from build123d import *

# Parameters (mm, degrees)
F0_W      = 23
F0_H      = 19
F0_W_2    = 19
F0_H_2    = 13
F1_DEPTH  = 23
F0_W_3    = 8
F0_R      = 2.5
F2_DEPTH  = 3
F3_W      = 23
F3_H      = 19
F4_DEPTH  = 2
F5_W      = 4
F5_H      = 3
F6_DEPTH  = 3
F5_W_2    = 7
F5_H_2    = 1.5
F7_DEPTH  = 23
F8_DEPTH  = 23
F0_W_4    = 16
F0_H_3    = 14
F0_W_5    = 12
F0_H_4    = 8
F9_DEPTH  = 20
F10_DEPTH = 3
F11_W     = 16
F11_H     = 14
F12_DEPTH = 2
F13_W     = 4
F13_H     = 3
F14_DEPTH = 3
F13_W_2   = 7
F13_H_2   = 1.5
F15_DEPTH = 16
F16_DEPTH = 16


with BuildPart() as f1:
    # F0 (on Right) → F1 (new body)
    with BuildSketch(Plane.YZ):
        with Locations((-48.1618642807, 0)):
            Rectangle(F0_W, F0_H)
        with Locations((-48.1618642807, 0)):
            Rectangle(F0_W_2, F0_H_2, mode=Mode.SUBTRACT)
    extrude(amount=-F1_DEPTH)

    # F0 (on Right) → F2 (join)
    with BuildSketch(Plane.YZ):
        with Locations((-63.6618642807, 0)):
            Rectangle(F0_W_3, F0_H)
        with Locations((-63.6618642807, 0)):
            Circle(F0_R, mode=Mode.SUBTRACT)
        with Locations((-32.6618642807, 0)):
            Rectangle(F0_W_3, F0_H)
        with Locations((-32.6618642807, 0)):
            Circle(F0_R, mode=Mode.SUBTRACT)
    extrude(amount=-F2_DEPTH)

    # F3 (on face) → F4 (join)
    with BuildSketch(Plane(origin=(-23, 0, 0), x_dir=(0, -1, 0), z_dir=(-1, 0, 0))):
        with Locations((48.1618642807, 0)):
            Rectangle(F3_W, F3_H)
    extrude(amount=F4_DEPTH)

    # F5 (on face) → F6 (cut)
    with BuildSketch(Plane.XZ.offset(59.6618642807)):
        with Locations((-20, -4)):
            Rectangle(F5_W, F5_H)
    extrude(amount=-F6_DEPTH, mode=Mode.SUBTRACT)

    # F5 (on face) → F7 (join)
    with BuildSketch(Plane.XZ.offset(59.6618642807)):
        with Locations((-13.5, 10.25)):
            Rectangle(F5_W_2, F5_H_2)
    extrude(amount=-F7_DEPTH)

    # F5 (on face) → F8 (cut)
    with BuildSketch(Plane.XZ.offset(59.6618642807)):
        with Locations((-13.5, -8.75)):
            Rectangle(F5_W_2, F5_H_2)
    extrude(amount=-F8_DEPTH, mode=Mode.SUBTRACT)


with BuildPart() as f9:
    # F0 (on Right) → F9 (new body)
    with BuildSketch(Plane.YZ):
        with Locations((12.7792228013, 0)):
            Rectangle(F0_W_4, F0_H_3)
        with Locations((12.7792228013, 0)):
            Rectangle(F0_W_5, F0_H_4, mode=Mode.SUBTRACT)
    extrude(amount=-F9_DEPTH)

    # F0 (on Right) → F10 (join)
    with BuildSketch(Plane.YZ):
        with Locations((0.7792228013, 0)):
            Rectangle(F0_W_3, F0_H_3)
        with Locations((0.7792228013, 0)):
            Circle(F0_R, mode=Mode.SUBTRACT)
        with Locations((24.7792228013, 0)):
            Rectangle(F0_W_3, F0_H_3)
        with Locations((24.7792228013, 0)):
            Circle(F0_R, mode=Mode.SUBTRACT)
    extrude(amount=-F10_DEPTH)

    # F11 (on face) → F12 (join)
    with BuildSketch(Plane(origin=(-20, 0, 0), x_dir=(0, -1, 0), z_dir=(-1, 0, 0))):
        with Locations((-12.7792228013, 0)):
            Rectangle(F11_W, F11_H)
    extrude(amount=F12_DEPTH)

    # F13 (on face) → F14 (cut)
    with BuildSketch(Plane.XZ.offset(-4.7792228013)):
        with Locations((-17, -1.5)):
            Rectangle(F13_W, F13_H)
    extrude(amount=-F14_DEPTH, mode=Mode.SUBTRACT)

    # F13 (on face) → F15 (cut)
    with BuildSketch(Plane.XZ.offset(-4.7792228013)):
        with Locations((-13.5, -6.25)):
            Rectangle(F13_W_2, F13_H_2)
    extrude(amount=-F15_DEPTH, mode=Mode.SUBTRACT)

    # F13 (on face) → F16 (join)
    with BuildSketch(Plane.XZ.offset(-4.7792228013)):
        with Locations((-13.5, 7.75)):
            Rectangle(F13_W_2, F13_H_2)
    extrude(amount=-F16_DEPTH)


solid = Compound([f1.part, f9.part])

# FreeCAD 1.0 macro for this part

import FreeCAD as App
import Part
import Sketcher


def add_polygon(sketch, points):
    """Adds a closed chain of lines whose ends are joined by coincident constraints."""
    first, n = sketch.GeometryCount, len(points)
    for a, b in zip(points, points[1:] + points[:1]):
        sketch.addGeometry(Part.LineSegment(App.Vector(*a, 0), App.Vector(*b, 0)), False)
    for i in range(n):
        sketch.addConstraint(Sketcher.Constraint("Coincident", first + i, 2, first + (i + 1) % n, 1))

doc = App.newDocument("Part")
body = doc.addObject("PartDesign::Body", "Body")

# Sketch on YZ plane
sketch1 = body.newObject("Sketcher::SketchObject", "Sketch")
sketch1.AttachmentSupport = (doc.getObject("YZ_Plane"), [""])
sketch1.MapMode = "FlatFace"
add_polygon(sketch1, [(-59.661864, 9.5), (-59.661864, -9.5), (-36.661864, -9.5), (-36.661864, 9.5)])  # lines 0-3
add_polygon(sketch1, [(-38.661864, -6.5), (-57.661864, -6.5), (-57.661864, 6.5), (-38.661864, 6.5)])  # lines 4-7
sketch1.addConstraint([
    Sketcher.Constraint("Vertical", 0),
    Sketcher.Constraint("Horizontal", 1),
    Sketcher.Constraint("Vertical", 2),
    Sketcher.Constraint("Horizontal", 3),
    Sketcher.Constraint("Horizontal", 4),
    Sketcher.Constraint("Vertical", 5),
    Sketcher.Constraint("Horizontal", 6),
    Sketcher.Constraint("Vertical", 7),
    Sketcher.Constraint("Equal", 6, 0),
    Sketcher.Constraint("DistanceX", 1, 1, 1, 2, 23.0),
    Sketcher.Constraint("DistanceX", 4, 2, 4, 1, 19.0),
    Sketcher.Constraint("DistanceY", 5, 1, 5, 2, 13.0),
    Sketcher.Constraint("DistanceX", 0, 2, 4, 2, 2.0),
    Sketcher.Constraint("DistanceY", 0, 2, 4, 2, 3.0),
    Sketcher.Constraint("DistanceY", 0, 2, -1, 1, 9.5),
    Sketcher.Constraint("DistanceX", 0, 2, -1, 1, 59.661864),
])
pad1 = body.newObject("PartDesign::Pad", "Pad")
pad1.Profile = sketch1
pad1.Length = 23
pad1.Reversed = True

# Sketch on YZ plane
sketch2 = body.newObject("Sketcher::SketchObject", "Sketch001")
sketch2.AttachmentSupport = (doc.getObject("YZ_Plane"), [""])
sketch2.MapMode = "FlatFace"
add_polygon(sketch2, [(-67.661864, 9.5), (-67.661864, -9.5), (-59.661864, -9.5), (-59.661864, 9.5)])  # lines 0-3
sketch2.addGeometry(Part.Circle(App.Vector(-63.661864, 0, 0), App.Vector(0, 0, 1), 2.5), False)  # 4
add_polygon(sketch2, [(-36.661864, 9.5), (-36.661864, -9.5), (-28.661864, -9.5), (-28.661864, 9.5)])  # lines 5-8
sketch2.addGeometry(Part.Circle(App.Vector(-32.661864, 0, 0), App.Vector(0, 0, 1), 2.5), False)  # 9
sketch2.addConstraint([
    Sketcher.Constraint("Vertical", 0),
    Sketcher.Constraint("Horizontal", 1),
    Sketcher.Constraint("Vertical", 2),
    Sketcher.Constraint("Horizontal", 3),
    Sketcher.Constraint("Vertical", 5),
    Sketcher.Constraint("Horizontal", 6),
    Sketcher.Constraint("Vertical", 7),
    Sketcher.Constraint("Horizontal", 8),
    Sketcher.Constraint("Equal", 4, 9),
    Sketcher.Constraint("PointOnObject", 4, 3, -1),
    Sketcher.Constraint("PointOnObject", 9, 3, -1),
    Sketcher.Constraint("Horizontal", 1, 2, 5, 2),
    Sketcher.Constraint("Horizontal", 3, 2, 7, 2),
    Sketcher.Constraint("Equal", 3, 6),
    Sketcher.Constraint("Diameter", 4, 5.0),
    Sketcher.Constraint("DistanceX", 1, 1, 1, 2, 8.0),
    Sketcher.Constraint("DistanceY", 0, 2, 0, 1, 19.0),
    Sketcher.Constraint("DistanceX", 4, 3, 9, 3, 31.0),
    Sketcher.Constraint("DistanceX", 0, 2, 4, 3, 4.0),
    Sketcher.Constraint("DistanceX", 5, 2, 9, 3, 4.0),
    Sketcher.Constraint("DistanceY", 0, 2, -1, 1, 9.5),
    Sketcher.Constraint("DistanceX", 4, 3, -1, 1, 63.661864),
])
pad2 = body.newObject("PartDesign::Pad", "Pad001")
pad2.Profile = sketch2
pad2.Length = 3
pad2.Reversed = True

# Sketch on YZ plane
sketch3 = body.newObject("Sketcher::SketchObject", "Sketch002")
sketch3.AttachmentSupport = (doc.getObject("YZ_Plane"), [""])
sketch3.MapMode = "FlatFace"
sketch3.AttachmentOffset = App.Placement(App.Vector(0, 0, -23), App.Rotation())
add_polygon(sketch3, [(-36.661864, 9.5), (-36.661864, -9.5), (-59.661864, -9.5), (-59.661864, 9.5)])  # lines 0-3
sketch3.addConstraint([
    Sketcher.Constraint("Vertical", 0),
    Sketcher.Constraint("Horizontal", 1),
    Sketcher.Constraint("Vertical", 2),
    Sketcher.Constraint("Horizontal", 3),
    Sketcher.Constraint("DistanceX", 1, 2, 1, 1, 23.0),
    Sketcher.Constraint("DistanceY", 0, 2, 0, 1, 19.0),
    Sketcher.Constraint("DistanceY", 0, 2, -1, 1, 9.5),
    Sketcher.Constraint("DistanceX", 0, 2, -1, 1, 36.661864),
])
pad3 = body.newObject("PartDesign::Pad", "Pad002")
pad3.Profile = sketch3
pad3.Length = 2
pad3.Reversed = True

# Sketch on XZ plane
sketch4 = body.newObject("Sketcher::SketchObject", "Sketch003")
sketch4.AttachmentSupport = (doc.getObject("XZ_Plane"), [""])
sketch4.MapMode = "FlatFace"
sketch4.AttachmentOffset = App.Placement(App.Vector(0, 0, 59.661864), App.Rotation())
add_polygon(sketch4, [(-22, -2.5), (-22, -5.5), (-18, -5.5), (-18, -2.5)])  # lines 0-3
sketch4.addConstraint([
    Sketcher.Constraint("Vertical", 0),
    Sketcher.Constraint("Horizontal", 1),
    Sketcher.Constraint("Vertical", 2),
    Sketcher.Constraint("Horizontal", 3),
    Sketcher.Constraint("DistanceX", 1, 1, 1, 2, 4.0),
    Sketcher.Constraint("DistanceY", 0, 2, 0, 1, 3.0),
    Sketcher.Constraint("DistanceX", 0, 2, -1, 1, 22.0),
    Sketcher.Constraint("DistanceY", 0, 2, -1, 1, 5.5),
])
pocket1 = body.newObject("PartDesign::Pocket", "Pocket")
pocket1.Profile = sketch4
pocket1.Length = 3

# Sketch on XZ plane
sketch5 = body.newObject("Sketcher::SketchObject", "Sketch004")
sketch5.AttachmentSupport = (doc.getObject("XZ_Plane"), [""])
sketch5.MapMode = "FlatFace"
sketch5.AttachmentOffset = App.Placement(App.Vector(0, 0, 59.661864), App.Rotation())
add_polygon(sketch5, [(-17, 11), (-17, 9.5), (-10, 9.5), (-10, 11)])  # lines 0-3
sketch5.addConstraint([
    Sketcher.Constraint("Vertical", 0),
    Sketcher.Constraint("Horizontal", 1),
    Sketcher.Constraint("Vertical", 2),
    Sketcher.Constraint("Horizontal", 3),
    Sketcher.Constraint("DistanceX", 1, 1, 1, 2, 7.0),
    Sketcher.Constraint("DistanceY", 0, 2, 0, 1, 1.5),
    Sketcher.Constraint("DistanceX", 0, 2, -1, 1, 17.0),
    Sketcher.Constraint("DistanceY", -1, 1, 2, 2, 11.0),
])
pad4 = body.newObject("PartDesign::Pad", "Pad003")
pad4.Profile = sketch5
pad4.Length = 23
pad4.Reversed = True

# Sketch on XZ plane
sketch6 = body.newObject("Sketcher::SketchObject", "Sketch005")
sketch6.AttachmentSupport = (doc.getObject("XZ_Plane"), [""])
sketch6.MapMode = "FlatFace"
sketch6.AttachmentOffset = App.Placement(App.Vector(0, 0, 59.661864), App.Rotation())
add_polygon(sketch6, [(-17, -8), (-17, -9.5), (-10, -9.5), (-10, -8)])  # lines 0-3
sketch6.addConstraint([
    Sketcher.Constraint("Vertical", 0),
    Sketcher.Constraint("Horizontal", 1),
    Sketcher.Constraint("Vertical", 2),
    Sketcher.Constraint("Horizontal", 3),
    Sketcher.Constraint("DistanceX", 1, 1, 1, 2, 7.0),
    Sketcher.Constraint("DistanceY", 0, 2, 0, 1, 1.5),
    Sketcher.Constraint("DistanceX", 0, 2, -1, 1, 17.0),
    Sketcher.Constraint("DistanceY", 2, 2, -1, 1, 8.0),
])
pocket2 = body.newObject("PartDesign::Pocket", "Pocket001")
pocket2.Profile = sketch6
pocket2.Length = 23
body2 = doc.addObject("PartDesign::Body", "Body001")

# Sketch on YZ plane
sketch7 = body2.newObject("Sketcher::SketchObject", "Sketch006")
sketch7.AttachmentSupport = (doc.getObject("YZ_Plane001"), [""])
sketch7.MapMode = "FlatFace"
add_polygon(sketch7, [(4.779223, 7), (4.779223, -7), (20.779223, -7), (20.779223, 7)])  # lines 0-3
add_polygon(sketch7, [(18.779223, -4), (6.779223, -4), (6.779223, 4), (18.779223, 4)])  # lines 4-7
sketch7.addConstraint([
    Sketcher.Constraint("Vertical", 0),
    Sketcher.Constraint("Horizontal", 1),
    Sketcher.Constraint("Vertical", 2),
    Sketcher.Constraint("Horizontal", 3),
    Sketcher.Constraint("Horizontal", 4),
    Sketcher.Constraint("Vertical", 5),
    Sketcher.Constraint("Horizontal", 6),
    Sketcher.Constraint("Vertical", 7),
    Sketcher.Constraint("DistanceX", 1, 1, 1, 2, 16.0),
    Sketcher.Constraint("DistanceX", 4, 2, 4, 1, 12.0),
    Sketcher.Constraint("DistanceY", 0, 2, 0, 1, 14.0),
    Sketcher.Constraint("DistanceY", 5, 1, 5, 2, 8.0),
    Sketcher.Constraint("DistanceY", 0, 2, -1, 1, 7.0),
    Sketcher.Constraint("DistanceY", 4, 2, -1, 1, 4.0),
    Sketcher.Constraint("DistanceX", 0, 2, 4, 2, 2.0),
    Sketcher.Constraint("DistanceX", -1, 1, 0, 2, 4.779223),
])
pad5 = body2.newObject("PartDesign::Pad", "Pad004")
pad5.Profile = sketch7
pad5.Length = 20
pad5.Reversed = True

# Sketch on YZ plane
sketch8 = body2.newObject("Sketcher::SketchObject", "Sketch007")
sketch8.AttachmentSupport = (doc.getObject("YZ_Plane001"), [""])
sketch8.MapMode = "FlatFace"
add_polygon(sketch8, [(-3.220777, 7), (-3.220777, -7), (4.779223, -7), (4.779223, 7)])  # lines 0-3
sketch8.addGeometry(Part.Circle(App.Vector(0.779223, 0, 0), App.Vector(0, 0, 1), 2.5), False)  # 4
add_polygon(sketch8, [(20.779223, 7), (20.779223, -7), (28.779223, -7), (28.779223, 7)])  # lines 5-8
sketch8.addGeometry(Part.Circle(App.Vector(24.779223, 0, 0), App.Vector(0, 0, 1), 2.5), False)  # 9
sketch8.addConstraint([
    Sketcher.Constraint("Vertical", 0),
    Sketcher.Constraint("Horizontal", 1),
    Sketcher.Constraint("Vertical", 2),
    Sketcher.Constraint("Horizontal", 3),
    Sketcher.Constraint("Vertical", 5),
    Sketcher.Constraint("Horizontal", 6),
    Sketcher.Constraint("Vertical", 7),
    Sketcher.Constraint("Horizontal", 8),
    Sketcher.Constraint("Equal", 4, 9),
    Sketcher.Constraint("PointOnObject", 4, 3, -1),
    Sketcher.Constraint("PointOnObject", 9, 3, -1),
    Sketcher.Constraint("Horizontal", 1, 2, 5, 2),
    Sketcher.Constraint("Horizontal", 3, 2, 7, 2),
    Sketcher.Constraint("Equal", 3, 6),
    Sketcher.Constraint("Diameter", 4, 5.0),
    Sketcher.Constraint("DistanceX", 1, 1, 1, 2, 8.0),
    Sketcher.Constraint("DistanceY", 0, 2, 0, 1, 14.0),
    Sketcher.Constraint("DistanceY", 0, 2, -1, 1, 7.0),
    Sketcher.Constraint("DistanceX", 4, 3, 9, 3, 24.0),
    Sketcher.Constraint("DistanceX", 0, 2, 4, 3, 4.0),
    Sketcher.Constraint("DistanceX", 5, 2, 9, 3, 4.0),
    Sketcher.Constraint("DistanceX", -1, 1, 4, 3, 0.779223),
])
pad6 = body2.newObject("PartDesign::Pad", "Pad005")
pad6.Profile = sketch8
pad6.Length = 3
pad6.Reversed = True

# Sketch on YZ plane
sketch9 = body2.newObject("Sketcher::SketchObject", "Sketch008")
sketch9.AttachmentSupport = (doc.getObject("YZ_Plane001"), [""])
sketch9.MapMode = "FlatFace"
sketch9.AttachmentOffset = App.Placement(App.Vector(0, 0, -20), App.Rotation())
add_polygon(sketch9, [(20.779223, 7), (20.779223, -7), (4.779223, -7), (4.779223, 7)])  # lines 0-3
sketch9.addConstraint([
    Sketcher.Constraint("Vertical", 0),
    Sketcher.Constraint("Horizontal", 1),
    Sketcher.Constraint("Vertical", 2),
    Sketcher.Constraint("Horizontal", 3),
    Sketcher.Constraint("DistanceX", 1, 2, 1, 1, 16.0),
    Sketcher.Constraint("DistanceY", 0, 2, 0, 1, 14.0),
    Sketcher.Constraint("DistanceY", 0, 2, -1, 1, 7.0),
    Sketcher.Constraint("DistanceX", -1, 1, 0, 2, 20.779223),
])
pad7 = body2.newObject("PartDesign::Pad", "Pad006")
pad7.Profile = sketch9
pad7.Length = 2
pad7.Reversed = True

# Sketch on XZ plane
sketch10 = body2.newObject("Sketcher::SketchObject", "Sketch009")
sketch10.AttachmentSupport = (doc.getObject("XZ_Plane001"), [""])
sketch10.MapMode = "FlatFace"
sketch10.AttachmentOffset = App.Placement(App.Vector(0, 0, -4.779223), App.Rotation())
add_polygon(sketch10, [(-19, 0), (-19, -3), (-15, -3), (-15, 0)])  # lines 0-3
sketch10.addConstraint([
    Sketcher.Constraint("Vertical", 0),
    Sketcher.Constraint("Horizontal", 1),
    Sketcher.Constraint("Vertical", 2),
    Sketcher.Constraint("Horizontal", 3),
    Sketcher.Constraint("PointOnObject", 2, 2, -1),
    Sketcher.Constraint("DistanceX", 1, 1, 1, 2, 4.0),
    Sketcher.Constraint("DistanceY", 0, 2, 0, 1, 3.0),
    Sketcher.Constraint("DistanceX", 0, 2, -1, 1, 19.0),
])
pocket3 = body2.newObject("PartDesign::Pocket", "Pocket002")
pocket3.Profile = sketch10
pocket3.Length = 3

# Sketch on XZ plane
sketch11 = body2.newObject("Sketcher::SketchObject", "Sketch010")
sketch11.AttachmentSupport = (doc.getObject("XZ_Plane001"), [""])
sketch11.MapMode = "FlatFace"
sketch11.AttachmentOffset = App.Placement(App.Vector(0, 0, -4.779223), App.Rotation())
add_polygon(sketch11, [(-17, -5.5), (-17, -7), (-10, -7), (-10, -5.5)])  # lines 0-3
sketch11.addConstraint([
    Sketcher.Constraint("Vertical", 0),
    Sketcher.Constraint("Horizontal", 1),
    Sketcher.Constraint("Vertical", 2),
    Sketcher.Constraint("Horizontal", 3),
    Sketcher.Constraint("DistanceX", 1, 1, 1, 2, 7.0),
    Sketcher.Constraint("DistanceY", 0, 2, 0, 1, 1.5),
    Sketcher.Constraint("DistanceX", 0, 2, -1, 1, 17.0),
    Sketcher.Constraint("DistanceY", 0, 2, -1, 1, 7.0),
])
pocket4 = body2.newObject("PartDesign::Pocket", "Pocket003")
pocket4.Profile = sketch11
pocket4.Length = 16

# Sketch on XZ plane
sketch12 = body2.newObject("Sketcher::SketchObject", "Sketch011")
sketch12.AttachmentSupport = (doc.getObject("XZ_Plane001"), [""])
sketch12.MapMode = "FlatFace"
sketch12.AttachmentOffset = App.Placement(App.Vector(0, 0, -4.779223), App.Rotation())
add_polygon(sketch12, [(-17, 8.5), (-17, 7), (-10, 7), (-10, 8.5)])  # lines 0-3
sketch12.addConstraint([
    Sketcher.Constraint("Vertical", 0),
    Sketcher.Constraint("Horizontal", 1),
    Sketcher.Constraint("Vertical", 2),
    Sketcher.Constraint("Horizontal", 3),
    Sketcher.Constraint("DistanceX", 1, 1, 1, 2, 7.0),
    Sketcher.Constraint("DistanceY", 0, 2, 0, 1, 1.5),
    Sketcher.Constraint("DistanceX", 0, 2, -1, 1, 17.0),
    Sketcher.Constraint("DistanceY", -1, 1, 0, 2, 7.0),
])
pad8 = body2.newObject("PartDesign::Pad", "Pad007")
pad8.Profile = sketch12
pad8.Length = 16
pad8.Reversed = True

doc.recompute()
